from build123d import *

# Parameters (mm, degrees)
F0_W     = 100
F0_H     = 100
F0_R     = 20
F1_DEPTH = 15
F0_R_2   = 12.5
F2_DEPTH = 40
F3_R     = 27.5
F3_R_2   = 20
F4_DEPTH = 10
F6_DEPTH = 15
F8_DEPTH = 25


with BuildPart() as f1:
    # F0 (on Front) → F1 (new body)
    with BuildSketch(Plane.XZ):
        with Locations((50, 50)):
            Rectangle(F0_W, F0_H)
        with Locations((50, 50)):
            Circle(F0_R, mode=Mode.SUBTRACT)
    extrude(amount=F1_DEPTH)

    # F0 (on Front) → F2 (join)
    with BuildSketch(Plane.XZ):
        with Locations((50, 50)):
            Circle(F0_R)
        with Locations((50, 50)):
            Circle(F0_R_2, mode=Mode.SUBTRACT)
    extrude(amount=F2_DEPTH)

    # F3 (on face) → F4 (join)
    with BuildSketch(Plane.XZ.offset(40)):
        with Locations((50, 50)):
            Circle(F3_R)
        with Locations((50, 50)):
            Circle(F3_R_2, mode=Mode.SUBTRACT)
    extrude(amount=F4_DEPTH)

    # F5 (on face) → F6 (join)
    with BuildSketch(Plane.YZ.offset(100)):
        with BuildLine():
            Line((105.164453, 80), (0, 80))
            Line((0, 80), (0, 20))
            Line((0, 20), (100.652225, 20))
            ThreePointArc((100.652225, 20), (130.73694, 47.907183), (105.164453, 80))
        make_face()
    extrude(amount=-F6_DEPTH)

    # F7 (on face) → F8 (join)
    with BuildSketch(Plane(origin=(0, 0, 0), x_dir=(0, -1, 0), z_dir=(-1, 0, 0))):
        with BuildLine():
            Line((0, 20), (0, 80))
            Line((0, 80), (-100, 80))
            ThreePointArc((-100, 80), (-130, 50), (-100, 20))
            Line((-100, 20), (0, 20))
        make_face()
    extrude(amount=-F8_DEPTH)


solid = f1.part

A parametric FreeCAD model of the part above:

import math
import FreeCAD as App
import Part
import Sketcher

doc = App.newDocument("Part")
params = doc.addObject("Spreadsheet::Sheet", "Params")
for row, (alias, value) in enumerate([
    ("sketch1_diameter", "40 mm"),
    ("sketch1_width", "100 mm"),
    ("pad1_length", "15 mm"),
    ("sketch2_diameter", "40 mm"),
    ("sketch2_diameter2", "25 mm"),
    ("pad2_length", "40 mm"),
    ("sketch3_diameter", "55 mm"),
    ("sketch3_diameter2", "40 mm"),
    ("pad3_length", "10 mm"),
    ("sketch4_height", "60 mm"),
    ("pad4_length", "15 mm"),
    ("sketch5_radius", "30 mm"),
    ("sketch5_width", "100 mm"),
    ("pad5_length", "25 mm"),
], start=1):
    params.set(f"A{row}", alias)
    params.set(f"B{row}", "=" + value)
    params.setAlias(f"B{row}", alias)

body = doc.addObject("PartDesign::Body", "Body")
body.AllowCompound = True

# Sketch on XZ plane
sketch1 = body.newObject("Sketcher::SketchObject", "Sketch")
sketch1.AttachmentSupport = (doc.getObject("XZ_Plane"), [""])
sketch1.MapMode = "FlatFace"
sketch1.addGeometry([
    Part.LineSegment(App.Vector(0, 100, 0), App.Vector(0, 0, 0)),  # 0
    Part.LineSegment(App.Vector(0, 0, 0), App.Vector(100, 0, 0)),  # 1
    Part.LineSegment(App.Vector(100, 0, 0), App.Vector(100, 100, 0)),  # 2
    Part.LineSegment(App.Vector(100, 100, 0), App.Vector(0, 100, 0)),  # 3
    Part.Circle(App.Vector(50, 50, 0), App.Vector(0, 0, 1), 20),  # 4
], False)
sketch1.addConstraint([
    Sketcher.Constraint("Coincident", 0, 2, 1, 1),
    Sketcher.Constraint("Coincident", 1, 2, 2, 1),
    Sketcher.Constraint("Coincident", 2, 2, 3, 1),
    Sketcher.Constraint("Coincident", 3, 2, 0, 1),
    Sketcher.Constraint("Vertical", 0),
    Sketcher.Constraint("Horizontal", 1),
    Sketcher.Constraint("Vertical", 2),
    Sketcher.Constraint("Horizontal", 3),
    Sketcher.Constraint("Coincident", 0, 2, -1, 1),
    Sketcher.Constraint("Equal", 3, 0),
    Sketcher.Constraint("Diameter", 4, 40.0),
    Sketcher.Constraint("DistanceX", 1, 1, 1, 2, 100.0),
    Sketcher.Constraint("DistanceX", -1, 1, 4, 3, 50.0),
    Sketcher.Constraint("DistanceY", -1, 1, 4, 3, 50.0),
])
sketch1.setExpression("Constraints[10]", "Params.sketch1_diameter")
sketch1.setExpression("Constraints[11]", "Params.sketch1_width")
pad1 = body.newObject("PartDesign::Pad", "Pad")
pad1.Profile = sketch1
pad1.setExpression("Length", "Params.pad1_length")

# Sketch on XZ plane
sketch2 = body.newObject("Sketcher::SketchObject", "Sketch001")
sketch2.AttachmentSupport = (doc.getObject("XZ_Plane"), [""])
sketch2.MapMode = "FlatFace"
sketch2.addGeometry([
    Part.Circle(App.Vector(50, 50, 0), App.Vector(0, 0, 1), 20),
    Part.Circle(App.Vector(50, 50, 0), App.Vector(0, 0, 1), 12.5),
], False)
sketch2.addConstraint([
    Sketcher.Constraint("Coincident", 1, 3, 0, 3),
    Sketcher.Constraint("Diameter", 0, 40.0),
    Sketcher.Constraint("Diameter", 1, 25.0),
    Sketcher.Constraint("DistanceX", -1, 1, 0, 3, 50.0),
    Sketcher.Constraint("DistanceY", -1, 1, 0, 3, 50.0),
])
sketch2.setExpression("Constraints[1]", "Params.sketch2_diameter")
sketch2.setExpression("Constraints[2]", "Params.sketch2_diameter2")
pad2 = body.newObject("PartDesign::Pad", "Pad001")
pad2.Profile = sketch2
pad2.setExpression("Length", "Params.pad2_length")

# Sketch on XZ plane
sketch3 = body.newObject("Sketcher::SketchObject", "Sketch002")
sketch3.AttachmentSupport = (doc.getObject("XZ_Plane"), [""])
sketch3.MapMode = "FlatFace"
sketch3.AttachmentOffset = App.Placement(App.Vector(0, 0, 40), App.Rotation())
sketch3.addGeometry([
    Part.Circle(App.Vector(50, 50, 0), App.Vector(0, 0, 1), 27.5),
    Part.Circle(App.Vector(50, 50, 0), App.Vector(0, 0, 1), 20),
], False)
sketch3.addConstraint([
    Sketcher.Constraint("Coincident", 1, 3, 0, 3),
    Sketcher.Constraint("Diameter", 0, 55.0),
    Sketcher.Constraint("Diameter", 1, 40.0),
    Sketcher.Constraint("DistanceX", -1, 1, 0, 3, 50.0),
    Sketcher.Constraint("DistanceY", -1, 1, 0, 3, 50.0),
])
sketch3.setExpression("Constraints[1]", "Params.sketch3_diameter")
sketch3.setExpression("Constraints[2]", "Params.sketch3_diameter2")
pad3 = body.newObject("PartDesign::Pad", "Pad002")
pad3.Profile = sketch3
pad3.setExpression("Length", "Params.pad3_length")

# Sketch on YZ plane
sketch4 = body.newObject("Sketcher::SketchObject", "Sketch003")
sketch4.AttachmentSupport = (doc.getObject("YZ_Plane"), [""])
sketch4.MapMode = "FlatFace"
sketch4.AttachmentOffset = App.Placement(App.Vector(0, 0, 100), App.Rotation())
sketch4.addGeometry([
    Part.LineSegment(App.Vector(105.164453, 80, 0), App.Vector(0, 80, 0)),
    Part.LineSegment(App.Vector(0, 80, 0), App.Vector(0, 20, 0)),
    Part.LineSegment(App.Vector(0, 20, 0), App.Vector(100.652225, 20, 0)),
    Part.ArcOfCircle(Part.Circle(App.Vector(100.652226, 50.169668, 0), App.Vector(0, 0, 1), 30.169668), math.radians(-90.000001), math.radians(81.398472)),
], False)
sketch4.addConstraint([
    Sketcher.Constraint("Coincident", 0, 2, 1, 1),
    Sketcher.Constraint("Coincident", 1, 2, 2, 1),
    Sketcher.Constraint("Tangent", 2, 2, 3, 1),
    Sketcher.Constraint("Coincident", 3, 2, 0, 1),
    Sketcher.Constraint("Horizontal", 0),
    Sketcher.Constraint("Vertical", 1),
    Sketcher.Constraint("Horizontal", 2),
    Sketcher.Constraint("PointOnObject", 0, 2, -2),
    Sketcher.Constraint("DistanceY", 1, 2, 1, 1, 60.0),
    Sketcher.Constraint("DistanceY", -1, 1, 0, 2, 80.0),
    Sketcher.Constraint("Radius", 3, 30.169668),
    Sketcher.Constraint("DistanceX", 0, 2, 0, 1, 105.164453),
])
sketch4.setExpression("Constraints[8]", "Params.sketch4_height")
pad4 = body.newObject("PartDesign::Pad", "Pad003")
pad4.Profile = sketch4
pad4.setExpression("Length", "Params.pad4_length")
pad4.Reversed = True

# Sketch on YZ plane
sketch5 = body.newObject("Sketcher::SketchObject", "Sketch004")
sketch5.AttachmentSupport = (doc.getObject("YZ_Plane"), [""])
sketch5.MapMode = "FlatFace"
sketch5.addGeometry([
    Part.LineSegment(App.Vector(0, 20, 0), App.Vector(0, 80, 0)),
    Part.LineSegment(App.Vector(0, 80, 0), App.Vector(100, 80, 0)),
    Part.ArcOfCircle(Part.Circle(App.Vector(100, 50, 0), App.Vector(0, 0, 1), 30), math.radians(-90), math.radians(90)),
    Part.LineSegment(App.Vector(100, 20, 0), App.Vector(0, 20, 0)),
], False)
sketch5.addConstraint([
    Sketcher.Constraint("Coincident", 0, 2, 1, 1),
    Sketcher.Constraint("Tangent", 1, 2, 2, 2),
    Sketcher.Constraint("Tangent", 2, 1, 3, 1),
    Sketcher.Constraint("Coincident", 3, 2, 0, 1),
    Sketcher.Constraint("Vertical", 0),
    Sketcher.Constraint("Horizontal", 1),
    Sketcher.Constraint("Horizontal", 3),
    Sketcher.Constraint("PointOnObject", 0, 2, -2),
    Sketcher.Constraint("Radius", 2, 30.0),
    Sketcher.Constraint("DistanceX", 1, 1, 1, 2, 100.0),
    Sketcher.Constraint("DistanceY", -1, 1, 2, 3, 50.0),
])
sketch5.setExpression("Constraints[8]", "Params.sketch5_radius")
sketch5.setExpression("Constraints[9]", "Params.sketch5_width")
pad5 = body.newObject("PartDesign::Pad", "Pad004")
pad5.Profile = sketch5
pad5.setExpression("Length", "Params.pad5_length")

doc.recompute()
